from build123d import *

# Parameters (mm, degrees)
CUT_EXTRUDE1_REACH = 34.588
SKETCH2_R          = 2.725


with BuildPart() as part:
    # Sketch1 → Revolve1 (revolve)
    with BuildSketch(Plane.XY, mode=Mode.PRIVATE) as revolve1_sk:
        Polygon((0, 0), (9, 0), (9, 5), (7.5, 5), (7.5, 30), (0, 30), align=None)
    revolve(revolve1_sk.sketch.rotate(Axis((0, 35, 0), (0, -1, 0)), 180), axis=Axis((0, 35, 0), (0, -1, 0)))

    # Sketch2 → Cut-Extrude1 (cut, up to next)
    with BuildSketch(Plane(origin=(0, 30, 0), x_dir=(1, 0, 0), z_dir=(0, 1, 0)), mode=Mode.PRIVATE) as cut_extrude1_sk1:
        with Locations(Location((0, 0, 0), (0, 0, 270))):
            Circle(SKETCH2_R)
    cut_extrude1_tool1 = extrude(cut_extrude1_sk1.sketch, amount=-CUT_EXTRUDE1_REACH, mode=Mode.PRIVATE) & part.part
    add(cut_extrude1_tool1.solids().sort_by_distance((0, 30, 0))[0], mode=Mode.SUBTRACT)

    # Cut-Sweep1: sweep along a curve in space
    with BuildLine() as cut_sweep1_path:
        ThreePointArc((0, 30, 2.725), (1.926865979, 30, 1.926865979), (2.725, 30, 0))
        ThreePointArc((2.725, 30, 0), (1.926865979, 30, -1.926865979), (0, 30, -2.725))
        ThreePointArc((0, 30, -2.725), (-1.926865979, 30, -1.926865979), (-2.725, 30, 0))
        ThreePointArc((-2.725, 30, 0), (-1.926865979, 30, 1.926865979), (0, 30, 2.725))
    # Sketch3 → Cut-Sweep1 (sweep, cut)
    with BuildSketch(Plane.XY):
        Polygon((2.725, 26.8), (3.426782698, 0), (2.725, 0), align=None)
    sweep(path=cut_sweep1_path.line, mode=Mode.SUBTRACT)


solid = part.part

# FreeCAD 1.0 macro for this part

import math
import FreeCAD as App
import Part
import Sketcher
Q = App.Units.Quantity


def add_polygon(sketch, points):
    """Adds a closed chain of lines whose ends are joined by coincident constraints."""
    first, n = sketch.GeometryCount, len(points)
    for a, b in zip(points, points[1:] + points[:1]):
        sketch.addGeometry(Part.LineSegment(App.Vector(*a, 0), App.Vector(*b, 0)), False)
    for i in range(n):
        sketch.addConstraint(Sketcher.Constraint("Coincident", first + i, 2, first + (i + 1) % n, 1))

doc = App.newDocument("Part")
body = doc.addObject("PartDesign::Body", "Body")

# Sketch on XY plane
sketch1 = body.newObject("Sketcher::SketchObject", "Sketch")
sketch1.AttachmentSupport = (doc.getObject("XY_Plane"), [""])
sketch1.MapMode = "FlatFace"
add_polygon(sketch1, [(0, 0), (9, 0), (9, 5), (7.5, 5), (7.5, 30), (0, 30)])  # lines 0-5
sketch1.addConstraint([
    Sketcher.Constraint("Horizontal", 0),
    Sketcher.Constraint("Vertical", 1),
    Sketcher.Constraint("Horizontal", 2),
    Sketcher.Constraint("Vertical", 3),
    Sketcher.Constraint("Horizontal", 4),
    Sketcher.Constraint("Vertical", 5),
    Sketcher.Constraint("Coincident", 5, 2, -1, 1),
    Sketcher.Constraint("DistanceX", 0, 1, 0, 2, 9.0),
    Sketcher.Constraint("DistanceY", 1, 1, 1, 2, 5.0),
    Sketcher.Constraint("DistanceY", 3, 1, 3, 2, 25.0),
    Sketcher.Constraint("DistanceX", 2, 2, 2, 1, 1.5),
])
revolution = body.newObject("PartDesign::Revolution", "Revolution")
revolution.Profile = sketch1
revolution.ReferenceAxis = (sketch1, ["V_Axis"])
revolution.Angle = 360

# Sketch on XZ plane
sketch2 = body.newObject("Sketcher::SketchObject", "Sketch001")
sketch2.AttachmentSupport = (doc.getObject("XZ_Plane"), [""])
sketch2.MapMode = "FlatFace"
sketch2.AttachmentOffset = App.Placement(App.Vector(0, 0, -30), App.Rotation())
sketch2.addGeometry(Part.Circle(App.Vector(0, 0, 0), App.Vector(0, 0, 1), 2.7), False)
sketch2.addConstraint([
    Sketcher.Constraint("Coincident", 0, 3, -1, 1),
    Sketcher.Constraint("Diameter", 0, 5.45),
])
pocket1 = body.newObject("PartDesign::Pocket", "Pocket")
pocket1.Profile = sketch2
pocket1.Type = "UpToFirst"
pocket1.Reversed = True

# Sketch on XY plane
sketch3 = body.newObject("Sketcher::SketchObject", "Sketch002")
sketch3.AttachmentSupport = (doc.getObject("XY_Plane"), [""])
sketch3.MapMode = "FlatFace"
add_polygon(sketch3, [(3.4, 0), (2.7, 26.8), (2.7, 0)])  # lines 0-2
sketch3.addConstraint([
    Sketcher.Constraint("Vertical", 1),
    Sketcher.Constraint("Horizontal", 2),
    Sketcher.Constraint("PointOnObject", 1, 2, -1),
    Sketcher.Constraint("DistanceY", 1, 2, 1, 1, 26.8),
    Sketcher.Constraint("Angle", 0, Q("91.5 deg")),
    Sketcher.Constraint("DistanceX", -1, 1, 0, 2, 2.725),
])

# Sketch on XZ plane
sketch4 = body.newObject("Sketcher::SketchObject", "Sketch003")
sketch4.AttachmentSupport = (doc.getObject("XZ_Plane"), [""])
sketch4.MapMode = "FlatFace"
sketch4.AttachmentOffset = App.Placement(App.Vector(0, 0, -30), App.Rotation())
sketch4.addGeometry([
    Part.ArcOfCircle(Part.Circle(App.Vector(0, 0, 0), App.Vector(0, 0, 1), 2.7), math.radians(0), math.radians(90)),
    Part.ArcOfCircle(Part.Circle(App.Vector(0, 0, 0), App.Vector(0, 0, 1), 2.7), math.radians(-90), math.radians(0)),
    Part.ArcOfCircle(Part.Circle(App.Vector(0, 0, 0), App.Vector(0, 0, 1), 2.7), math.radians(180), math.radians(270)),
    Part.ArcOfCircle(Part.Circle(App.Vector(0, 0, 0), App.Vector(0, 0, 1), 2.7), math.radians(90), math.radians(180)),
], False)
sketch4.addConstraint([
    Sketcher.Constraint("Tangent", 0, 1, 1, 2),
    Sketcher.Constraint("Tangent", 1, 1, 2, 2),
    Sketcher.Constraint("Tangent", 2, 1, 3, 2),
    Sketcher.Constraint("Tangent", 3, 1, 0, 2),
    Sketcher.Constraint("Coincident", 0, 3, -1, 1),
    Sketcher.Constraint("Equal", 0, 1),
    Sketcher.Constraint("PointOnObject", 0, 1, -1),
    Sketcher.Constraint("PointOnObject", 1, 1, -2),
    Sketcher.Constraint("PointOnObject", 2, 1, -1),
    Sketcher.Constraint("PointOnObject", 3, 1, -2),
    Sketcher.Constraint("Radius", 0, 2.725),
])
doc.recompute()

subtractivepipe = body.newObject("PartDesign::SubtractivePipe", "SubtractivePipe")
subtractivepipe.Profile = sketch3
subtractivepipe.Spine = (sketch4, ["Edge1", "Edge2", "Edge3", "Edge4"])

doc.recompute()
